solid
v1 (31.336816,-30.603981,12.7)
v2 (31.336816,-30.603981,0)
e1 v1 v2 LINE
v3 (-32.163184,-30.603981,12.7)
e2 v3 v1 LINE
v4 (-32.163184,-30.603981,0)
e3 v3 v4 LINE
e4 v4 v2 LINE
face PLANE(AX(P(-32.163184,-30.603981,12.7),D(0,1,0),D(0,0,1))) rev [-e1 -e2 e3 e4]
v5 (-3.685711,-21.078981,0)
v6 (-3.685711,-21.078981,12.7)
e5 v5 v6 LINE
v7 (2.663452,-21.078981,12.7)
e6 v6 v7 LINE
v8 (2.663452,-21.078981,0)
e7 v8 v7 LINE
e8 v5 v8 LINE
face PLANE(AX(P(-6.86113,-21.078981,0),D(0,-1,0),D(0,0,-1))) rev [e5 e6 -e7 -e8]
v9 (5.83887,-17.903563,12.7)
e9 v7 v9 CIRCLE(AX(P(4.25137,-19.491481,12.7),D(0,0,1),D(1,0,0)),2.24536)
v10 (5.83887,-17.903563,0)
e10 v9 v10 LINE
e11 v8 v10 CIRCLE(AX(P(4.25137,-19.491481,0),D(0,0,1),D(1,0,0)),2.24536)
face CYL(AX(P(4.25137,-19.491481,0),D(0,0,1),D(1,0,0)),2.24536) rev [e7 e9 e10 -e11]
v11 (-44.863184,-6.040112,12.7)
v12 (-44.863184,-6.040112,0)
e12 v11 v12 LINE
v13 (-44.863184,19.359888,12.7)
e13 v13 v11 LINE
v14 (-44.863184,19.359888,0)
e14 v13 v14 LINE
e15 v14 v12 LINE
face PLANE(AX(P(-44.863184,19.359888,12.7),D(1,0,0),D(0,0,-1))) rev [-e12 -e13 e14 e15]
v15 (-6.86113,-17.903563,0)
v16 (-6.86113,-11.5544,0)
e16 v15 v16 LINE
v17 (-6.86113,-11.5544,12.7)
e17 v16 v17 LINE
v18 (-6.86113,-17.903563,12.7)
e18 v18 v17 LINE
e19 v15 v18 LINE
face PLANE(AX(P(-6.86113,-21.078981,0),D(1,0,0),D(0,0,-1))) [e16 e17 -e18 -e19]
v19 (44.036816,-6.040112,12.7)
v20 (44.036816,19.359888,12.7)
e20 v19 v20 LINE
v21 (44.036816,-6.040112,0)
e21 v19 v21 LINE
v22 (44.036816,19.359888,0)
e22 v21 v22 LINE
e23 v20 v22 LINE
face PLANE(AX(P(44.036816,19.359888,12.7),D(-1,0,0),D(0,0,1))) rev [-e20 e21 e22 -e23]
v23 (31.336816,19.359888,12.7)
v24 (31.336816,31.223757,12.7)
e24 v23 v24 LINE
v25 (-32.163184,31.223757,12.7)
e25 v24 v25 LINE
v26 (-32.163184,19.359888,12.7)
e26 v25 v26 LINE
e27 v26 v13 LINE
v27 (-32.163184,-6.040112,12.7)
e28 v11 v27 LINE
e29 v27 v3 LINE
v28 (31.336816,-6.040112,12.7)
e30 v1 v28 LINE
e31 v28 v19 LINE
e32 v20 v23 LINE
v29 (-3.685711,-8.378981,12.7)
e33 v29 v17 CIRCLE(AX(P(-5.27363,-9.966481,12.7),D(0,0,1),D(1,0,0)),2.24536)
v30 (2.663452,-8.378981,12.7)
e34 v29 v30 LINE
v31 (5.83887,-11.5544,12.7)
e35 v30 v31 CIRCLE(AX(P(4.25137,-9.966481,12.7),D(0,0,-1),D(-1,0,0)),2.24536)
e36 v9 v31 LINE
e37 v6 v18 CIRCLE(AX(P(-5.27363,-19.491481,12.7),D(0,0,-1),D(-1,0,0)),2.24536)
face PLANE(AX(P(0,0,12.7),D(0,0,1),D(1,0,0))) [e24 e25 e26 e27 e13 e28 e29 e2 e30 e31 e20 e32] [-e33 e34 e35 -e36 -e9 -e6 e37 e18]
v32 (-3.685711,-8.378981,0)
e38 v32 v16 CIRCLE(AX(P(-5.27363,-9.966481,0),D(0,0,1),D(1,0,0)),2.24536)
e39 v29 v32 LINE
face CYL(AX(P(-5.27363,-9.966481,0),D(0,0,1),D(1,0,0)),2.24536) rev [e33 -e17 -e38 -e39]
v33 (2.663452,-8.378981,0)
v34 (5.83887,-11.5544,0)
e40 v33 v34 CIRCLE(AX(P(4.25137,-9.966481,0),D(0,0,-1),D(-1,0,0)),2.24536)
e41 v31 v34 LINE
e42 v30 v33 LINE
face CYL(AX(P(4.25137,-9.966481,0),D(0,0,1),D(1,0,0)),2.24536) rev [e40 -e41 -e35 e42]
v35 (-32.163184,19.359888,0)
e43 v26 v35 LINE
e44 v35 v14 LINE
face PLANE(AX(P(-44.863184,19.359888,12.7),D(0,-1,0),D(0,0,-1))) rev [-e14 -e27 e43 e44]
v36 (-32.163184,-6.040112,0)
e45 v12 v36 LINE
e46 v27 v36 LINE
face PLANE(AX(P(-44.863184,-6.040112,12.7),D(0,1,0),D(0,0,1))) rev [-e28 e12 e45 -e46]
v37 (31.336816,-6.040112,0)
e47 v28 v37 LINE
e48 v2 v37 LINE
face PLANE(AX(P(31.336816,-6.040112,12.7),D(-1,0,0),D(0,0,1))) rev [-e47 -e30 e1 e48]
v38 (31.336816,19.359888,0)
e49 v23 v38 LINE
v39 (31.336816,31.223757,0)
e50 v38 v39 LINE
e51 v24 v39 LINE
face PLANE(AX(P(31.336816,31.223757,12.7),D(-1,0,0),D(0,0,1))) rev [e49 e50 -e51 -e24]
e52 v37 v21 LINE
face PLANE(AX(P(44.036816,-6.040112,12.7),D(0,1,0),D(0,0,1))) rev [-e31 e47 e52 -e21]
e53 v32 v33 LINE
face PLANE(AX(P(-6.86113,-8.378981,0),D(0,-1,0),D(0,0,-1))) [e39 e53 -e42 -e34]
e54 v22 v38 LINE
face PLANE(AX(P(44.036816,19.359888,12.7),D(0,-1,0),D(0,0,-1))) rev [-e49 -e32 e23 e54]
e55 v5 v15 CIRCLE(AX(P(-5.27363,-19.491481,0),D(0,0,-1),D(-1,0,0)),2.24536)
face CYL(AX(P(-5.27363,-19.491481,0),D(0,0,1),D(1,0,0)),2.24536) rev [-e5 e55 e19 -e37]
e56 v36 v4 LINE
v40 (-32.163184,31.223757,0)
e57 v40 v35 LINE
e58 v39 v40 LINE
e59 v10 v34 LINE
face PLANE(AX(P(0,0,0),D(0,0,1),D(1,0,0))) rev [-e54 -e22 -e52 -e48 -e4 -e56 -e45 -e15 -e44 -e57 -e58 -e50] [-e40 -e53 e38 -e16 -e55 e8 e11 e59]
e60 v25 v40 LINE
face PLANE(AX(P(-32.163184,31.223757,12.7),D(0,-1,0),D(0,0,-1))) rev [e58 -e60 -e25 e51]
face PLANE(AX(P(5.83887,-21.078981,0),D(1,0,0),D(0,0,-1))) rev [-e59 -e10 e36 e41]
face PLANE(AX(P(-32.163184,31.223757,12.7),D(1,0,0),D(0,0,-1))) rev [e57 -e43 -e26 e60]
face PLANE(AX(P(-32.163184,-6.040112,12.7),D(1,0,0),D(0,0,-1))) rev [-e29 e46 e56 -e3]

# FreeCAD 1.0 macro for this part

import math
import FreeCAD as App
import Part
import Sketcher

V = App.Vector
Q = App.Units.Quantity

doc = App.newDocument("Part")
body = doc.addObject("PartDesign::Body", "Body")

# Sketch on XY plane
sketch1 = body.newObject("Sketcher::SketchObject", "Sketch")
sketch1.AttachmentSupport = (doc.getObject("XY_Plane"), [""])
sketch1.MapMode = "FlatFace"
sketch1.addGeometry([
    Part.LineSegment(V(-32, -6, 0), V(-32, -31, 0)),  # 0
    Part.LineSegment(V(-32, -31, 0), V(31, -31, 0)),  # 1
    Part.LineSegment(V(31, -31, 0), V(31, -6, 0)),  # 2
    Part.LineSegment(V(31, -6, 0), V(44, -6, 0)),  # 3
    Part.LineSegment(V(44, -6, 0), V(44, 19, 0)),  # 4
    Part.LineSegment(V(44, 19, 0), V(31, 19, 0)),  # 5
    Part.LineSegment(V(31, 19, 0), V(31, 31, 0)),  # 6
    Part.LineSegment(V(31, 31, 0), V(-32, 31, 0)),  # 7
    Part.LineSegment(V(-32, 31, 0), V(-32, 19, 0)),  # 8
    Part.LineSegment(V(-32, 19, 0), V(-45, 19, 0)),  # 9
    Part.LineSegment(V(-45, 19, 0), V(-45, -6, 0)),  # 10
    Part.LineSegment(V(-45, -6, 0), V(-32, -6, 0)),  # 11
], False)
sketch1.addConstraint([
    Sketcher.Constraint("Coincident", 0, 2, 1, 1),
    Sketcher.Constraint("Coincident", 1, 2, 2, 1),
    Sketcher.Constraint("Coincident", 2, 2, 3, 1),
    Sketcher.Constraint("Coincident", 3, 2, 4, 1),
    Sketcher.Constraint("Coincident", 4, 2, 5, 1),
    Sketcher.Constraint("Coincident", 5, 2, 6, 1),
    Sketcher.Constraint("Coincident", 6, 2, 7, 1),
    Sketcher.Constraint("Coincident", 7, 2, 8, 1),
    Sketcher.Constraint("Coincident", 8, 2, 9, 1),
    Sketcher.Constraint("Coincident", 9, 2, 10, 1),
    Sketcher.Constraint("Coincident", 10, 2, 11, 1),
    Sketcher.Constraint("Coincident", 11, 2, 0, 1),
    Sketcher.Constraint("Vertical", 0),
    Sketcher.Constraint("Horizontal", 1),
    Sketcher.Constraint("Vertical", 2),
    Sketcher.Constraint("Horizontal", 3),
    Sketcher.Constraint("Vertical", 4),
    Sketcher.Constraint("Horizontal", 5),
    Sketcher.Constraint("Vertical", 6),
    Sketcher.Constraint("Horizontal", 7),
    Sketcher.Constraint("Vertical", 8),
    Sketcher.Constraint("Horizontal", 9),
    Sketcher.Constraint("Vertical", 10),
    Sketcher.Constraint("Horizontal", 11),
    Sketcher.Constraint("Horizontal", 5, 2, 8, 2),
    Sketcher.Constraint("Horizontal", 3, 2, 10, 2),
    Sketcher.Constraint("Vertical", 2, 2, 5, 2),
    Sketcher.Constraint("Vertical", 0, 2, 7, 2),
    Sketcher.Constraint("Equal", 5, 9),
    Sketcher.Constraint("DistanceY", 4, 1, 4, 2, Q("1 in")),
    Sketcher.Constraint("DistanceX", 1, 1, 1, 2, Q("2.5 in")),
    Sketcher.Constraint("DistanceX", 3, 1, 3, 2, Q("0.5 in")),
    Sketcher.Constraint("DistanceY", 0, 2, 0, 1, 24.563869),
    Sketcher.Constraint("DistanceY", 6, 1, 6, 2, 11.863869),
    Sketcher.Constraint("DistanceY", 0, 2, -1, 1, 30.603981),
    Sketcher.Constraint("DistanceX", 0, 2, -1, 1, 32.163184),
])
pad1 = body.newObject("PartDesign::Pad", "Pad")
pad1.Profile = sketch1
pad1.Length = Q("0.5 in")

# Sketch on XY plane
sketch2 = body.newObject("Sketcher::SketchObject", "Sketch001")
sketch2.AttachmentSupport = (doc.getObject("XY_Plane"), [""])
sketch2.MapMode = "FlatFace"
sketch2.AttachmentOffset = App.Placement(V(0, 0, 0.5 * 25.4), App.Rotation())
sketch2.addGeometry([
    Part.LineSegment(V(-6.9, -11.6, 0), V(-6.9, -17.9, 0)),  # 0
    Part.ArcOfCircle(Part.Circle(V(-5.3, -19.5, 0), V(0, 0, 1), 2.2), math.radians(135), math.radians(315)),  # 1
    Part.LineSegment(V(-3.7, -21.1, 0), V(2.7, -21.1, 0)),  # 2
    Part.ArcOfCircle(Part.Circle(V(4.3, -19.5, 0), V(0, 0, 1), 2.2), math.radians(-135), math.radians(45)),  # 3
    Part.LineSegment(V(5.8, -17.9, 0), V(5.8, -11.6, 0)),  # 4
    Part.ArcOfCircle(Part.Circle(V(4.3, -10, 0), V(0, 0, 1), 2.2), math.radians(-45), math.radians(135)),  # 5
    Part.LineSegment(V(2.7, -8.4, 0), V(-3.7, -8.4, 0)),  # 6
    Part.ArcOfCircle(Part.Circle(V(-5.3, -10, 0), V(0, 0, 1), 2.2), math.radians(45), math.radians(225)),  # 7
], False)
sketch2.addConstraint([
    Sketcher.Constraint("Coincident", 0, 2, 1, 1),
    Sketcher.Constraint("Coincident", 1, 2, 2, 1),
    Sketcher.Constraint("Coincident", 2, 2, 3, 1),
    Sketcher.Constraint("Coincident", 3, 2, 4, 1),
    Sketcher.Constraint("Coincident", 4, 2, 5, 1),
    Sketcher.Constraint("Coincident", 5, 2, 6, 1),
    Sketcher.Constraint("Coincident", 6, 2, 7, 1),
    Sketcher.Constraint("Coincident", 7, 2, 0, 1),
    Sketcher.Constraint("Vertical", 0),
    Sketcher.Constraint("Horizontal", 2),
    Sketcher.Constraint("Vertical", 4),
    Sketcher.Constraint("Horizontal", 6),
    Sketcher.Constraint("Equal", 1, 3),
    Sketcher.Constraint("Equal", 3, 5),
    Sketcher.Constraint("Equal", 5, 7),
    Sketcher.Constraint("Horizontal", 1, 3, 3, 3),
    Sketcher.Constraint("Horizontal", 5, 3, 7, 3),
    Sketcher.Constraint("Horizontal", 0, 2, 3, 2),
    Sketcher.Constraint("Horizontal", 4, 2, 7, 2),
    Sketcher.Constraint("Vertical", 3, 3, 5, 3),
    Sketcher.Constraint("Vertical", 2, 2, 5, 2),
    Sketcher.Constraint("Equal", 6, 0),
    Sketcher.Constraint("Radius", 1, Q("0.0884 in")),
    Sketcher.Constraint("DistanceX", 1, 3, 3, 3, Q("0.375 in")),
    Sketcher.Constraint("DistanceY", 3, 3, 5, 3, Q("0.375 in")),
    Sketcher.Constraint("DistanceX", 0, 2, 1, 3, Q("0.0625 in")),
    Sketcher.Constraint("DistanceY", 4, 2, -1, 1, 11.5544),
    Sketcher.Constraint("DistanceX", 1, 3, -1, 1, 5.27363),
])
pocket1 = body.newObject("PartDesign::Pocket", "Pocket")
pocket1.Profile = sketch2
pocket1.Type = "ThroughAll"

doc.recompute()
